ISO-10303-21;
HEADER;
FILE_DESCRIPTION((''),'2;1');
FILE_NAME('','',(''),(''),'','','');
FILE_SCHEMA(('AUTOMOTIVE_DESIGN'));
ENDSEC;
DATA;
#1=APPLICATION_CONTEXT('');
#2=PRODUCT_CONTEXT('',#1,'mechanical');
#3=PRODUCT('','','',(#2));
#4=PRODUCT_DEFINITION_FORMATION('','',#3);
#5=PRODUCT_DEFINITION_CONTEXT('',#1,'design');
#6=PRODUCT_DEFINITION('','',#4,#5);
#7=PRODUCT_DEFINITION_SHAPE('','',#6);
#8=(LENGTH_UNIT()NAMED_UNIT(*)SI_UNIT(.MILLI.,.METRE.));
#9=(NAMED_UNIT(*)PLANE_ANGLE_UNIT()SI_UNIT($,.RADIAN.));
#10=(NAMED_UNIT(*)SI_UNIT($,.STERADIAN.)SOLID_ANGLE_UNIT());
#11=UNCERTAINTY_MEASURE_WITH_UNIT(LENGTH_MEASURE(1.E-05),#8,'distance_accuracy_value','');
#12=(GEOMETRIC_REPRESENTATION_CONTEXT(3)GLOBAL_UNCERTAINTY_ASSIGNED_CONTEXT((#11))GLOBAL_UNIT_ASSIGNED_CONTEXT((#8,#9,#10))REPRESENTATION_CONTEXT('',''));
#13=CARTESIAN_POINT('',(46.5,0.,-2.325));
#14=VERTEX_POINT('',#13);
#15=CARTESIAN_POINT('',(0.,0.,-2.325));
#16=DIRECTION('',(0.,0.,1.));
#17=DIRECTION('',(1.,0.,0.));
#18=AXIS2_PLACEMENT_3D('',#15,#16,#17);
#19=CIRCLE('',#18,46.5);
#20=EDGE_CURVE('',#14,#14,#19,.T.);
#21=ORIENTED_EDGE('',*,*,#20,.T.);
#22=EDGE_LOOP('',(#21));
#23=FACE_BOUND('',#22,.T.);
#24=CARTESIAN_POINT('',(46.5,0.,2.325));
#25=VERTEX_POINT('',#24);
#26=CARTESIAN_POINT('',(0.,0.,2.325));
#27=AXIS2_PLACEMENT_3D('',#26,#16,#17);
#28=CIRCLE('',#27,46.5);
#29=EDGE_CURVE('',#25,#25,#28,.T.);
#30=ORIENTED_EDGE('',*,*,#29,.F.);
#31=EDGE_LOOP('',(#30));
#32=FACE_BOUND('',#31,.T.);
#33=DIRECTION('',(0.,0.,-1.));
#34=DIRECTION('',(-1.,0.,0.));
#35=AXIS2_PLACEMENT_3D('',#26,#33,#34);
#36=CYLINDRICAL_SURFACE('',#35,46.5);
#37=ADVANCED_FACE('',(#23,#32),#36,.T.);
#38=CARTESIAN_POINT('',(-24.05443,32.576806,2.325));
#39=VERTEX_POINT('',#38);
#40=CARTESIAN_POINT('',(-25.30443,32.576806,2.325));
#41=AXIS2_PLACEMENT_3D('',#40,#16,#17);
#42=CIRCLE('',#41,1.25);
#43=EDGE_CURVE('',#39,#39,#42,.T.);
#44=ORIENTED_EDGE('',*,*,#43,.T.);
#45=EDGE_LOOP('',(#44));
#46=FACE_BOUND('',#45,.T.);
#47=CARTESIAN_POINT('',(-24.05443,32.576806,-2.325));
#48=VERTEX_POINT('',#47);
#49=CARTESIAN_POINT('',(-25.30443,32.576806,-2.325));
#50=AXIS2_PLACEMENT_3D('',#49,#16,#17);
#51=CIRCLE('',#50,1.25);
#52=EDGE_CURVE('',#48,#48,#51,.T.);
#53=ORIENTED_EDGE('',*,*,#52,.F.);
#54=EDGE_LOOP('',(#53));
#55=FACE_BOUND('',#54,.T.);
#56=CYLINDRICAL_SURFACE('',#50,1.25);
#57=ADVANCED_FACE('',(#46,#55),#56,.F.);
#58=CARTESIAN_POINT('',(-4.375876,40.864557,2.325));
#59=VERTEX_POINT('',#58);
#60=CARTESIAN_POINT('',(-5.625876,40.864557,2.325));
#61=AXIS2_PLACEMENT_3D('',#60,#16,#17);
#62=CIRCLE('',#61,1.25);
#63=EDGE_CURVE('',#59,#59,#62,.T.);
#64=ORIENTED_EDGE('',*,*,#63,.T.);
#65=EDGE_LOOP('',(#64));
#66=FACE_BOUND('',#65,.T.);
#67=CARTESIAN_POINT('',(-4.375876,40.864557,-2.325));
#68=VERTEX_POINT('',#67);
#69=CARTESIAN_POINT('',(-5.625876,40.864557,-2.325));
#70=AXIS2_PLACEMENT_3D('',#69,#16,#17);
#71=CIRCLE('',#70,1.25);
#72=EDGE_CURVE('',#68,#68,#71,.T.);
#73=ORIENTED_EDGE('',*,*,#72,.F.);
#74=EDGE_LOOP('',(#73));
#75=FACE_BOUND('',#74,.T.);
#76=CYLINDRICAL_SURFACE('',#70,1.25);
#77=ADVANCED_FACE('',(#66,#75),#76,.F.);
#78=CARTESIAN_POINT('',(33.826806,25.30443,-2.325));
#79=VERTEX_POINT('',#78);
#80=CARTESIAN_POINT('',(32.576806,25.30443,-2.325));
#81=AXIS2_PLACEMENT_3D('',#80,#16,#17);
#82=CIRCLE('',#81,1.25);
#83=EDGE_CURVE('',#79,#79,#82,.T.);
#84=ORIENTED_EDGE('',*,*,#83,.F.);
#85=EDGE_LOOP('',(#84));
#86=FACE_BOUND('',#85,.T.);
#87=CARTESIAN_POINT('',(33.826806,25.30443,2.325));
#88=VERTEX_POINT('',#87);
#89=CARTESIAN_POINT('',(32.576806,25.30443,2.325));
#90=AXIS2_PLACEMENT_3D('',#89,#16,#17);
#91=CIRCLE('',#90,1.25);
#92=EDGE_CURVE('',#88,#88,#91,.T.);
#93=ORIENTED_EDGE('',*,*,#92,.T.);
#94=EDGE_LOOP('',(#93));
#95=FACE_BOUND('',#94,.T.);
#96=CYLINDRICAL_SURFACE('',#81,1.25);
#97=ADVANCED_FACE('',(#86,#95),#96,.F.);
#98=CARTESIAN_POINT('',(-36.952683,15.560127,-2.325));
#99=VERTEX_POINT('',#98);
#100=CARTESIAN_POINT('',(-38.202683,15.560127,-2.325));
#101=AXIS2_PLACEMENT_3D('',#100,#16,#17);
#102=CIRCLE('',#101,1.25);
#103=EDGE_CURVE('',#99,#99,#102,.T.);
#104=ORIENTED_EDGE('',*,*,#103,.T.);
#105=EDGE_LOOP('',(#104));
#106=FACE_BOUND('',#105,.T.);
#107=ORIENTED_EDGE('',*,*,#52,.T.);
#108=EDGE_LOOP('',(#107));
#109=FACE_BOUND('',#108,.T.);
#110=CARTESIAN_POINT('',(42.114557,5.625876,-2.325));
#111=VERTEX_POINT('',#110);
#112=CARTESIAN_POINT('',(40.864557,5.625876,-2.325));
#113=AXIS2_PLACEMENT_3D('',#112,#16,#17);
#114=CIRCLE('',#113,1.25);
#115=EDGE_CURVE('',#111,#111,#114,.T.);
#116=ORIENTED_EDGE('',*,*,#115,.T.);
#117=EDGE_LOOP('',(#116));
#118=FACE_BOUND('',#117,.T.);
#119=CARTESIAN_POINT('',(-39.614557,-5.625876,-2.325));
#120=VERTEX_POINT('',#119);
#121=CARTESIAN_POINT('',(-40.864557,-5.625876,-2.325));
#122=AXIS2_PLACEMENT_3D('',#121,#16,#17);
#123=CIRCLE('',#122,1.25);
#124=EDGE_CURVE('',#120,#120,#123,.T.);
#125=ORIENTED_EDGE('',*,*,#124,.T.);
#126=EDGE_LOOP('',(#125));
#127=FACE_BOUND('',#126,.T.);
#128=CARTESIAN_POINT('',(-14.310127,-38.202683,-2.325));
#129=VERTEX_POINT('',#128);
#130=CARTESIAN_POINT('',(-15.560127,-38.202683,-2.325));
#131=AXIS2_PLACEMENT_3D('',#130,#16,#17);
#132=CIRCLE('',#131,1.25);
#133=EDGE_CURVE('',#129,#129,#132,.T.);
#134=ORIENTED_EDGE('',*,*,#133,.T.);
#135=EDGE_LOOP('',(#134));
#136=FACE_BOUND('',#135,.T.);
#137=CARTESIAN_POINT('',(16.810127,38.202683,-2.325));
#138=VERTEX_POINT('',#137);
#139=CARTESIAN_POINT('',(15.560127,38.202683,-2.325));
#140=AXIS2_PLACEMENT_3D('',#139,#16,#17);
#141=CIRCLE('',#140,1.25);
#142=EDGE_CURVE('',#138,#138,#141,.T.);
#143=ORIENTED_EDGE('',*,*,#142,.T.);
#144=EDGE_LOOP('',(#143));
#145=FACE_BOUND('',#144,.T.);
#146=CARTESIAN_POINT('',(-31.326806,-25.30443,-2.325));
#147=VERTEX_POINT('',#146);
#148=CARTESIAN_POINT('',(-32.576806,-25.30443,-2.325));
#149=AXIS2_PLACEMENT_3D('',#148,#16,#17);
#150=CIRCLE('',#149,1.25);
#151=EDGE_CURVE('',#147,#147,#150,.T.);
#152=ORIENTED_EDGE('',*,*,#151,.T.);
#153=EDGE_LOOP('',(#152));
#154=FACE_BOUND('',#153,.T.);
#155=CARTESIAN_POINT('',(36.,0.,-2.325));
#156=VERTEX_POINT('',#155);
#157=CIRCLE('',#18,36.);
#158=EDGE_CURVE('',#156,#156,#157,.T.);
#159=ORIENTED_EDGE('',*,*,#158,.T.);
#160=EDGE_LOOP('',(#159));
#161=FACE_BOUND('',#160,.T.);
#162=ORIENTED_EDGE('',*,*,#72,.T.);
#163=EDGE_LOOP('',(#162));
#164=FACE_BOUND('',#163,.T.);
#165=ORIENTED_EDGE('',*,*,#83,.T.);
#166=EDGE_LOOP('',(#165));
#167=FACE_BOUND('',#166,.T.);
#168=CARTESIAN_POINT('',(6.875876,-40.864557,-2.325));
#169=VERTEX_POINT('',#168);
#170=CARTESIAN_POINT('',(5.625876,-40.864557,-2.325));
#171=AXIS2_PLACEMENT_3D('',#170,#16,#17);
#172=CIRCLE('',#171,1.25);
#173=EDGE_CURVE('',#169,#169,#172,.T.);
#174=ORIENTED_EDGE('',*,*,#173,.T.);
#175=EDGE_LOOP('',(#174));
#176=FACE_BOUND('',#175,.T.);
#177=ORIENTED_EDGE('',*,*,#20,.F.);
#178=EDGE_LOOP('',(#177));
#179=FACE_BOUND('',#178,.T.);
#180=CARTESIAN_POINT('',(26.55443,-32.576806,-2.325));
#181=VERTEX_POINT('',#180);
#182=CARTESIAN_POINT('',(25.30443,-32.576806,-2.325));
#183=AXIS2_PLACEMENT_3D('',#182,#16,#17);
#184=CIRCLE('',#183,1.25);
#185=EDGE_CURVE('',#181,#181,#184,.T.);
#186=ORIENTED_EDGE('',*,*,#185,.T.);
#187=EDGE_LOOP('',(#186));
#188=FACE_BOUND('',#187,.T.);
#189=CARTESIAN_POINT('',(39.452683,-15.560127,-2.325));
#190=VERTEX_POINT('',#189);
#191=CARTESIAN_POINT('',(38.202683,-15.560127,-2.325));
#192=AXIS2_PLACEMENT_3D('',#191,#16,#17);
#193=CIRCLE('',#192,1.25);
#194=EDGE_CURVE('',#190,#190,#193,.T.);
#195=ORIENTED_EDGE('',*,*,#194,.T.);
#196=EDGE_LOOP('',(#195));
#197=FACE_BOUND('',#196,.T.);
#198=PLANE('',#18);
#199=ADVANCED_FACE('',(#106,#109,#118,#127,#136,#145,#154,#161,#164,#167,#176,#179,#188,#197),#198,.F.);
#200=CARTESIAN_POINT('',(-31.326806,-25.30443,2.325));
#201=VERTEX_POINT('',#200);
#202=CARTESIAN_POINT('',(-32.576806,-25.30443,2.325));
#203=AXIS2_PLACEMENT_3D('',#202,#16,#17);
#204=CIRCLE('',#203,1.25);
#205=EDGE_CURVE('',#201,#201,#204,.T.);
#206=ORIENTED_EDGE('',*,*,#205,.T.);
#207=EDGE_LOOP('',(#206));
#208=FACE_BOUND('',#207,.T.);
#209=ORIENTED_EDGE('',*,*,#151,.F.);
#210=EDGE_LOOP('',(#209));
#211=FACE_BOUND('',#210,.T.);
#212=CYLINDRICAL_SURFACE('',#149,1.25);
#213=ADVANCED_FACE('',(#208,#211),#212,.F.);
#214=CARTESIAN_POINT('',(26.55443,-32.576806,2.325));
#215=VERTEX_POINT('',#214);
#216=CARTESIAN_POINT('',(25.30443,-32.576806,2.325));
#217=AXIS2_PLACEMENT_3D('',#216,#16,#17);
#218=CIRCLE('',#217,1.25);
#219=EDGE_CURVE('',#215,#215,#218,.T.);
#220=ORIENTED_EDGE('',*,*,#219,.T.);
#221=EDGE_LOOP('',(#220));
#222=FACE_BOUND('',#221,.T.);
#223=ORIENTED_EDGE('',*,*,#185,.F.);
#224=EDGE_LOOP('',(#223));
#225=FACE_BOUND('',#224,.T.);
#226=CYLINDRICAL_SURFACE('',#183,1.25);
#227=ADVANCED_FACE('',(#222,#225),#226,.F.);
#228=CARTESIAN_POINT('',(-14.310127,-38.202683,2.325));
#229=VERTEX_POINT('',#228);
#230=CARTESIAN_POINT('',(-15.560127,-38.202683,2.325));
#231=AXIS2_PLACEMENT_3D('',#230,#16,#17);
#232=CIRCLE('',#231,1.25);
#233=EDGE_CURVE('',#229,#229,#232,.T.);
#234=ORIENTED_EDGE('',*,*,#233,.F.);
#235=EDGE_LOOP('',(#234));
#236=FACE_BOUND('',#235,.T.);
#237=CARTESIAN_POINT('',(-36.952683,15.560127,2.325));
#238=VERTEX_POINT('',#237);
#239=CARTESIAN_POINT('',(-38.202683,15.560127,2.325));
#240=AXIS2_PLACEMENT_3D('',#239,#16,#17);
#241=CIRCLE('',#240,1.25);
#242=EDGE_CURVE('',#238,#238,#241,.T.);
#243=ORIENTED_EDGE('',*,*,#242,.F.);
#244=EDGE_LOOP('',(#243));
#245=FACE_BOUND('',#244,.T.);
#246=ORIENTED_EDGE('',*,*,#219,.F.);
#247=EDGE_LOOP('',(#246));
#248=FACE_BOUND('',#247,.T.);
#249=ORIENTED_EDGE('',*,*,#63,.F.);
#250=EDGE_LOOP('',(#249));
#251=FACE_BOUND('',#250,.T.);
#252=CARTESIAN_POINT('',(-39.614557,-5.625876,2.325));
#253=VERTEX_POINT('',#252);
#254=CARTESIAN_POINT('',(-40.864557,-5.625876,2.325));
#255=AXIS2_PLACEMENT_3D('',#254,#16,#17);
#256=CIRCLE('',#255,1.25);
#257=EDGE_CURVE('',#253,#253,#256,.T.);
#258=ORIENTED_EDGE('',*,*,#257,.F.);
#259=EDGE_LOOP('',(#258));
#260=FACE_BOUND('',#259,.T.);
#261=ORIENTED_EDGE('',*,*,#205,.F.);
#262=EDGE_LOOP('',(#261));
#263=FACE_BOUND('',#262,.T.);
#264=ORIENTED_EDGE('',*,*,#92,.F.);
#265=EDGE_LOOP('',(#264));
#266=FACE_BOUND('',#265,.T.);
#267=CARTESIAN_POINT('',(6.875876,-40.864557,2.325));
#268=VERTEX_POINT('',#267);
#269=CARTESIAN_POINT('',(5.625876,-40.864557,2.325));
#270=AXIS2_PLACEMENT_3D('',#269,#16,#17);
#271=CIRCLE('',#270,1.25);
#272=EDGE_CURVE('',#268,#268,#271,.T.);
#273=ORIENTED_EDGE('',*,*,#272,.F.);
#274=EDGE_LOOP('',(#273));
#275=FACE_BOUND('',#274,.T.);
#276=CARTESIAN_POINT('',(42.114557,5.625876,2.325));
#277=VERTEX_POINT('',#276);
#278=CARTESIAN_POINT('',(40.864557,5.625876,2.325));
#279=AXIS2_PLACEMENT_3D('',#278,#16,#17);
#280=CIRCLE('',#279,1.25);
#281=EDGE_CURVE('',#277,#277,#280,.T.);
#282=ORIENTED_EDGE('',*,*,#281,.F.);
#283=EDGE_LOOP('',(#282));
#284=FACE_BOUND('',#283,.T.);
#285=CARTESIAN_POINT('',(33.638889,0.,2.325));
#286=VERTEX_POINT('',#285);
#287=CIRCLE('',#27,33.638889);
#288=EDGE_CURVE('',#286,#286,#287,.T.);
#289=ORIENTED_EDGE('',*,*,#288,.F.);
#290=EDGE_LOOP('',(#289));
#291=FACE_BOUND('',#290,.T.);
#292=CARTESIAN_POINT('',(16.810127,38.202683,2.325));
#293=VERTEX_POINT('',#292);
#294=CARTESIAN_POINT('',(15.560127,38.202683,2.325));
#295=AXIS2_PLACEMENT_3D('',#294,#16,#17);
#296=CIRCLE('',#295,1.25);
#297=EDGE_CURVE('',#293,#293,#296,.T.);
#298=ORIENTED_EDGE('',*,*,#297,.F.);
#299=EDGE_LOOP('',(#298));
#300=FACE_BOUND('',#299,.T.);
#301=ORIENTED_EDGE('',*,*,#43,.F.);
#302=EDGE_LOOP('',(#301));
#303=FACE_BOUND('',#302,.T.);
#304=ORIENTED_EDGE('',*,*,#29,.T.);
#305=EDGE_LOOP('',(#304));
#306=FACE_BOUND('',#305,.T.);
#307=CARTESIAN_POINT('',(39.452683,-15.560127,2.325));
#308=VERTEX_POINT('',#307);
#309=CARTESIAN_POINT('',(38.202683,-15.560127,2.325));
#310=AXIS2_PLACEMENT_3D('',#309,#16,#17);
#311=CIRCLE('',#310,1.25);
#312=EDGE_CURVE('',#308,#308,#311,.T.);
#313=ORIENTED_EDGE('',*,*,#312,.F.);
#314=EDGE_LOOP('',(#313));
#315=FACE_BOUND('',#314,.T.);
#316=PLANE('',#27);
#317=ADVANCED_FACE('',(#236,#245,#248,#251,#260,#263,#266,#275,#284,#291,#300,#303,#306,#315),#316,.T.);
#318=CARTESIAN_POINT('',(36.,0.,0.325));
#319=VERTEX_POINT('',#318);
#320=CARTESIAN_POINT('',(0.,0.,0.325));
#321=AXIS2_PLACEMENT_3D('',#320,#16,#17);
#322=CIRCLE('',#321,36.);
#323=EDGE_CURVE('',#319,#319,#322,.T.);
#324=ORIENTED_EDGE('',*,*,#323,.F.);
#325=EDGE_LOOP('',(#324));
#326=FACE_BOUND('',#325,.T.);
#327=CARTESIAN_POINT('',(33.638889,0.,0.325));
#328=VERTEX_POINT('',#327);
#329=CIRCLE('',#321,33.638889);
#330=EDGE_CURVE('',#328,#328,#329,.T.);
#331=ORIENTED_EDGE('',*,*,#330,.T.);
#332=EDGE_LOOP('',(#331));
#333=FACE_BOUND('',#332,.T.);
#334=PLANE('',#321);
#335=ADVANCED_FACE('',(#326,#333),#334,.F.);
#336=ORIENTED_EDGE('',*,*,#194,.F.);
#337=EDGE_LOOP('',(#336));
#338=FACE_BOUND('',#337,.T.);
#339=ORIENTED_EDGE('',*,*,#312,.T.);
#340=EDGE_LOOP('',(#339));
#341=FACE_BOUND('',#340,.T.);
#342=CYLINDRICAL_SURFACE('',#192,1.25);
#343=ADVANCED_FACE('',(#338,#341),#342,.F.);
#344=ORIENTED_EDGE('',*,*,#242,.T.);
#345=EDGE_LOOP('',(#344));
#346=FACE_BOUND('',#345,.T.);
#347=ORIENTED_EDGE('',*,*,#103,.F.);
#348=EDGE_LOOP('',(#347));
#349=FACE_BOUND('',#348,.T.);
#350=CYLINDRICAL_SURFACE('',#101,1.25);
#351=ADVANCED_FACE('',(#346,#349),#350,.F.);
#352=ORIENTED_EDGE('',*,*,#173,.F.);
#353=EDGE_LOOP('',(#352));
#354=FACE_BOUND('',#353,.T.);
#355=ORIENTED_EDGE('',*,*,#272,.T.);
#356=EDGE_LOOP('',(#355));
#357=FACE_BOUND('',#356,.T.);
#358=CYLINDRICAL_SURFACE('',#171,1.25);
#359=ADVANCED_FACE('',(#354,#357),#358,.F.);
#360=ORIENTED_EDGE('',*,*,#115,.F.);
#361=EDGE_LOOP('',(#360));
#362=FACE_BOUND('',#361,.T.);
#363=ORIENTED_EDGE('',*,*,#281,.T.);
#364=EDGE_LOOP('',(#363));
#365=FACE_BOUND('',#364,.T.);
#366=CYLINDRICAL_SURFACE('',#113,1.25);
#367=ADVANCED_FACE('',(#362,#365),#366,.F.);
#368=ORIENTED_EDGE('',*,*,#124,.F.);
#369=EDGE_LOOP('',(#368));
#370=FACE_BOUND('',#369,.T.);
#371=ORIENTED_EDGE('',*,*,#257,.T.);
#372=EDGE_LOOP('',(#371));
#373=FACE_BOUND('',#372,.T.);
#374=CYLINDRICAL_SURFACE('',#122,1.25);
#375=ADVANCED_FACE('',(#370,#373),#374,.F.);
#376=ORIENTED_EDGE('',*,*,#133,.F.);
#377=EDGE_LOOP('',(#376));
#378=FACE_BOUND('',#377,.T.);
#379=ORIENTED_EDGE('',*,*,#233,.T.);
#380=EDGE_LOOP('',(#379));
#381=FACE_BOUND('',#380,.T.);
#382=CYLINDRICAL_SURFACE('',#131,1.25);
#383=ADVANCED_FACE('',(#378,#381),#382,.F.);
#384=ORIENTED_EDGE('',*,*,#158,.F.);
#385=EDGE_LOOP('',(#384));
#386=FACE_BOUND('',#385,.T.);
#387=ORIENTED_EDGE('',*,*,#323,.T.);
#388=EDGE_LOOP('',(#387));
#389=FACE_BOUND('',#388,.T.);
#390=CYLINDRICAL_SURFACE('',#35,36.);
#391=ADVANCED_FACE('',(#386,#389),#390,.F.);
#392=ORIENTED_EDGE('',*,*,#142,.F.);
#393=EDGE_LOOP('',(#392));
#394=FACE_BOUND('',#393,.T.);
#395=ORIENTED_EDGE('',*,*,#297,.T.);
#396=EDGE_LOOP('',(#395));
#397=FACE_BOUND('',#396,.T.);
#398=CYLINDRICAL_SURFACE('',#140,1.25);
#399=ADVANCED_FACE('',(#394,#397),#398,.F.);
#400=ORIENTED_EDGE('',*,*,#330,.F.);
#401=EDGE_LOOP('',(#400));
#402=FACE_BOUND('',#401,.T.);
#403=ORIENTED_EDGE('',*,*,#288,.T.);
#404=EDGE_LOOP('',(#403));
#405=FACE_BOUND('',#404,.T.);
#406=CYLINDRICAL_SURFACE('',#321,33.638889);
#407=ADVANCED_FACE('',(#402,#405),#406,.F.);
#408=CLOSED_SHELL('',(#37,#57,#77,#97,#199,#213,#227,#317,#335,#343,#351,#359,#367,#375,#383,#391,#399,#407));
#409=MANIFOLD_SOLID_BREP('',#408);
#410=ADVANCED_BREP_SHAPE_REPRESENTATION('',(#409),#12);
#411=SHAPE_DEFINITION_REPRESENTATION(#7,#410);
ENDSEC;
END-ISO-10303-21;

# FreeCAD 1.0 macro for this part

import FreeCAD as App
import Part
import Sketcher

V = App.Vector
Q = App.Units.Quantity

doc = App.newDocument("Part")
params = doc.addObject("Spreadsheet::Sheet", "Params")
for row, (alias, value) in enumerate([
    ("sketch1_diameter", "93 mm"),
    ("sketch1_diameter2", "72 mm"),
    ("pad1_length", "4.65 mm"),
    ("sketch2_diameter", "72 mm"),
    ("pad2_length", "2 mm"),
    ("sketch3_diameter", "2.5 mm"),
], start=1):
    params.set(f"A{row}", alias)
    params.set(f"B{row}", "=" + value)
    params.setAlias(f"B{row}", alias)

body = doc.addObject("PartDesign::Body", "Body")

sketch1 = doc.addObject("Sketcher::SketchObject", "Sketch")
body.addObject(sketch1)
sketch1.AttachmentSupport = (doc.XY_Plane, [""])
sketch1.MapMode = "FlatFace"
sketch1.addGeometry([
    Part.Circle(V(0, 0, 0), V(0, 0, 1), 46),
    Part.Circle(V(0, 0, 0), V(0, 0, 1), 36),
], False)
sketch1.addConstraint([
    Sketcher.Constraint("Coincident", 0, 3, -1, 1),
    Sketcher.Constraint("Coincident", 1, 3, -1, 1),
    Sketcher.Constraint("Diameter", 0, Q("93 mm")),
    Sketcher.Constraint("Diameter", 1, Q("72 mm")),
])
sketch1.setExpression("Constraints[2]", "Params.sketch1_diameter")
sketch1.setExpression("Constraints[3]", "Params.sketch1_diameter2")
pad1 = doc.addObject("PartDesign::Pad", "Pad")
body.addObject(pad1)
pad1.Profile = sketch1
pad1.setExpression("Length", "Params.pad1_length")
pad1.Midplane = True

sketch2 = doc.addObject("Sketcher::SketchObject", "Sketch001")
body.addObject(sketch2)
sketch2.AttachmentSupport = (doc.XY_Plane, [""])
sketch2.MapMode = "FlatFace"
sketch2.AttachmentOffset = App.Placement(V(0, 0, 0.325), App.Rotation())
sketch2.addGeometry([
    Part.Circle(V(0, 0, 0), V(0, 0, 1), 36),
    Part.Circle(V(0, 0, 0), V(0, 0, 1), 34),
], False)
sketch2.addConstraint([
    Sketcher.Constraint("Coincident", 0, 3, -1, 1),
    Sketcher.Constraint("Coincident", 1, 3, -1, 1),
    Sketcher.Constraint("Diameter", 0, Q("72 mm")),
    Sketcher.Constraint("Diameter", 1, Q("67.277778 mm")),
])
sketch2.setExpression("Constraints[2]", "Params.sketch2_diameter")
pad2 = doc.addObject("PartDesign::Pad", "Pad001")
body.addObject(pad2)
pad2.Profile = sketch2
pad2.setExpression("Length", "Params.pad2_length")

sketch3 = doc.addObject("Sketcher::SketchObject", "Sketch002")
body.addObject(sketch3)
sketch3.AttachmentSupport = (doc.XY_Plane, [""])
sketch3.MapMode = "FlatFace"
sketch3.AttachmentOffset = App.Placement(V(0, 0, 2.325), App.Rotation())
sketch3.addGeometry([
    Part.Circle(V(-15.6, -38.2, 0), V(0, 0, 1), 1.2),
    Part.Circle(V(-32.6, -25.3, 0), V(0, 0, 1), 1.2),
    Part.Circle(V(-40.9, -5.6, 0), V(0, 0, 1), 1.2),
    Part.Circle(V(-38.2, 15.6, 0), V(0, 0, 1), 1.2),
    Part.Circle(V(-25.3, 32.6, 0), V(0, 0, 1), 1.2),
    Part.Circle(V(-5.6, 40.9, 0), V(0, 0, 1), 1.2),
    Part.Circle(V(15.6, 38.2, 0), V(0, 0, 1), 1.2),
    Part.Circle(V(32.6, 25.3, 0), V(0, 0, 1), 1.2),
    Part.Circle(V(40.9, 5.6, 0), V(0, 0, 1), 1.2),
    Part.Circle(V(38.2, -15.6, 0), V(0, 0, 1), 1.2),
    Part.Circle(V(25.3, -32.6, 0), V(0, 0, 1), 1.2),
    Part.Circle(V(5.6, -40.9, 0), V(0, 0, 1), 1.2),
], False)
sketch3.addConstraint([
    Sketcher.Constraint("Equal", 0, 1),
    Sketcher.Constraint("Equal", 1, 2),
    Sketcher.Constraint("Equal", 2, 3),
    Sketcher.Constraint("Equal", 3, 4),
    Sketcher.Constraint("Equal", 4, 5),
    Sketcher.Constraint("Equal", 5, 6),
    Sketcher.Constraint("Equal", 6, 7),
    Sketcher.Constraint("Equal", 7, 8),
    Sketcher.Constraint("Equal", 8, 9),
    Sketcher.Constraint("Equal", 9, 10),
    Sketcher.Constraint("Equal", 10, 11),
    Sketcher.Constraint("Symmetric", 0, 3, 6, 3, -1, 1),
    Sketcher.Constraint("Symmetric", 1, 3, 7, 3, -1, 1),
    Sketcher.Constraint("Symmetric", 2, 3, 8, 3, -1, 1),
    Sketcher.Constraint("Symmetric", 3, 3, 9, 3, -1, 1),
    Sketcher.Constraint("Symmetric", 4, 3, 10, 3, -1, 1),
    Sketcher.Constraint("Symmetric", 5, 3, 11, 3, -1, 1),
    Sketcher.Constraint("Diameter", 0, Q("2.5 mm")),
    Sketcher.Constraint("DistanceY", 1, 3, -1, 1, Q("25.30443 mm")),
    Sketcher.Constraint("DistanceX", 4, 3, -1, 1, Q("25.30443 mm")),
    Sketcher.Constraint("DistanceX", 1, 3, 0, 3, Q("17.01668 mm")),
    Sketcher.Constraint("DistanceX", 2, 3, 1, 3, Q("8.287751 mm")),
    Sketcher.Constraint("DistanceY", 0, 3, 3, 3, Q("53.762809 mm")),
    Sketcher.Constraint("DistanceY", 3, 3, 4, 3, Q("17.01668 mm")),
    Sketcher.Constraint("DistanceY", 4, 3, 5, 3, Q("8.287751 mm")),
    Sketcher.Constraint("DistanceX", 2, 3, 5, 3, Q("35.238681 mm")),
    Sketcher.Constraint("DistanceX", 3, 3, 6, 3, Q("53.762809 mm")),
    Sketcher.Constraint("DistanceY", 2, 3, 6, 3, Q("43.828559 mm")),
    Sketcher.Constraint("DistanceX", 0, 3, -1, 1, Q("15.560127 mm")),
    Sketcher.Constraint("DistanceY", 0, 3, -1, 1, Q("38.202683 mm")),
])
sketch3.setExpression("Constraints[17]", "Params.sketch3_diameter")
pocket1 = doc.addObject("PartDesign::Pocket", "Pocket")
body.addObject(pocket1)
pocket1.Profile = sketch3
pocket1.Type = "ThroughAll"
pocket1.Midplane = True

doc.recompute()
